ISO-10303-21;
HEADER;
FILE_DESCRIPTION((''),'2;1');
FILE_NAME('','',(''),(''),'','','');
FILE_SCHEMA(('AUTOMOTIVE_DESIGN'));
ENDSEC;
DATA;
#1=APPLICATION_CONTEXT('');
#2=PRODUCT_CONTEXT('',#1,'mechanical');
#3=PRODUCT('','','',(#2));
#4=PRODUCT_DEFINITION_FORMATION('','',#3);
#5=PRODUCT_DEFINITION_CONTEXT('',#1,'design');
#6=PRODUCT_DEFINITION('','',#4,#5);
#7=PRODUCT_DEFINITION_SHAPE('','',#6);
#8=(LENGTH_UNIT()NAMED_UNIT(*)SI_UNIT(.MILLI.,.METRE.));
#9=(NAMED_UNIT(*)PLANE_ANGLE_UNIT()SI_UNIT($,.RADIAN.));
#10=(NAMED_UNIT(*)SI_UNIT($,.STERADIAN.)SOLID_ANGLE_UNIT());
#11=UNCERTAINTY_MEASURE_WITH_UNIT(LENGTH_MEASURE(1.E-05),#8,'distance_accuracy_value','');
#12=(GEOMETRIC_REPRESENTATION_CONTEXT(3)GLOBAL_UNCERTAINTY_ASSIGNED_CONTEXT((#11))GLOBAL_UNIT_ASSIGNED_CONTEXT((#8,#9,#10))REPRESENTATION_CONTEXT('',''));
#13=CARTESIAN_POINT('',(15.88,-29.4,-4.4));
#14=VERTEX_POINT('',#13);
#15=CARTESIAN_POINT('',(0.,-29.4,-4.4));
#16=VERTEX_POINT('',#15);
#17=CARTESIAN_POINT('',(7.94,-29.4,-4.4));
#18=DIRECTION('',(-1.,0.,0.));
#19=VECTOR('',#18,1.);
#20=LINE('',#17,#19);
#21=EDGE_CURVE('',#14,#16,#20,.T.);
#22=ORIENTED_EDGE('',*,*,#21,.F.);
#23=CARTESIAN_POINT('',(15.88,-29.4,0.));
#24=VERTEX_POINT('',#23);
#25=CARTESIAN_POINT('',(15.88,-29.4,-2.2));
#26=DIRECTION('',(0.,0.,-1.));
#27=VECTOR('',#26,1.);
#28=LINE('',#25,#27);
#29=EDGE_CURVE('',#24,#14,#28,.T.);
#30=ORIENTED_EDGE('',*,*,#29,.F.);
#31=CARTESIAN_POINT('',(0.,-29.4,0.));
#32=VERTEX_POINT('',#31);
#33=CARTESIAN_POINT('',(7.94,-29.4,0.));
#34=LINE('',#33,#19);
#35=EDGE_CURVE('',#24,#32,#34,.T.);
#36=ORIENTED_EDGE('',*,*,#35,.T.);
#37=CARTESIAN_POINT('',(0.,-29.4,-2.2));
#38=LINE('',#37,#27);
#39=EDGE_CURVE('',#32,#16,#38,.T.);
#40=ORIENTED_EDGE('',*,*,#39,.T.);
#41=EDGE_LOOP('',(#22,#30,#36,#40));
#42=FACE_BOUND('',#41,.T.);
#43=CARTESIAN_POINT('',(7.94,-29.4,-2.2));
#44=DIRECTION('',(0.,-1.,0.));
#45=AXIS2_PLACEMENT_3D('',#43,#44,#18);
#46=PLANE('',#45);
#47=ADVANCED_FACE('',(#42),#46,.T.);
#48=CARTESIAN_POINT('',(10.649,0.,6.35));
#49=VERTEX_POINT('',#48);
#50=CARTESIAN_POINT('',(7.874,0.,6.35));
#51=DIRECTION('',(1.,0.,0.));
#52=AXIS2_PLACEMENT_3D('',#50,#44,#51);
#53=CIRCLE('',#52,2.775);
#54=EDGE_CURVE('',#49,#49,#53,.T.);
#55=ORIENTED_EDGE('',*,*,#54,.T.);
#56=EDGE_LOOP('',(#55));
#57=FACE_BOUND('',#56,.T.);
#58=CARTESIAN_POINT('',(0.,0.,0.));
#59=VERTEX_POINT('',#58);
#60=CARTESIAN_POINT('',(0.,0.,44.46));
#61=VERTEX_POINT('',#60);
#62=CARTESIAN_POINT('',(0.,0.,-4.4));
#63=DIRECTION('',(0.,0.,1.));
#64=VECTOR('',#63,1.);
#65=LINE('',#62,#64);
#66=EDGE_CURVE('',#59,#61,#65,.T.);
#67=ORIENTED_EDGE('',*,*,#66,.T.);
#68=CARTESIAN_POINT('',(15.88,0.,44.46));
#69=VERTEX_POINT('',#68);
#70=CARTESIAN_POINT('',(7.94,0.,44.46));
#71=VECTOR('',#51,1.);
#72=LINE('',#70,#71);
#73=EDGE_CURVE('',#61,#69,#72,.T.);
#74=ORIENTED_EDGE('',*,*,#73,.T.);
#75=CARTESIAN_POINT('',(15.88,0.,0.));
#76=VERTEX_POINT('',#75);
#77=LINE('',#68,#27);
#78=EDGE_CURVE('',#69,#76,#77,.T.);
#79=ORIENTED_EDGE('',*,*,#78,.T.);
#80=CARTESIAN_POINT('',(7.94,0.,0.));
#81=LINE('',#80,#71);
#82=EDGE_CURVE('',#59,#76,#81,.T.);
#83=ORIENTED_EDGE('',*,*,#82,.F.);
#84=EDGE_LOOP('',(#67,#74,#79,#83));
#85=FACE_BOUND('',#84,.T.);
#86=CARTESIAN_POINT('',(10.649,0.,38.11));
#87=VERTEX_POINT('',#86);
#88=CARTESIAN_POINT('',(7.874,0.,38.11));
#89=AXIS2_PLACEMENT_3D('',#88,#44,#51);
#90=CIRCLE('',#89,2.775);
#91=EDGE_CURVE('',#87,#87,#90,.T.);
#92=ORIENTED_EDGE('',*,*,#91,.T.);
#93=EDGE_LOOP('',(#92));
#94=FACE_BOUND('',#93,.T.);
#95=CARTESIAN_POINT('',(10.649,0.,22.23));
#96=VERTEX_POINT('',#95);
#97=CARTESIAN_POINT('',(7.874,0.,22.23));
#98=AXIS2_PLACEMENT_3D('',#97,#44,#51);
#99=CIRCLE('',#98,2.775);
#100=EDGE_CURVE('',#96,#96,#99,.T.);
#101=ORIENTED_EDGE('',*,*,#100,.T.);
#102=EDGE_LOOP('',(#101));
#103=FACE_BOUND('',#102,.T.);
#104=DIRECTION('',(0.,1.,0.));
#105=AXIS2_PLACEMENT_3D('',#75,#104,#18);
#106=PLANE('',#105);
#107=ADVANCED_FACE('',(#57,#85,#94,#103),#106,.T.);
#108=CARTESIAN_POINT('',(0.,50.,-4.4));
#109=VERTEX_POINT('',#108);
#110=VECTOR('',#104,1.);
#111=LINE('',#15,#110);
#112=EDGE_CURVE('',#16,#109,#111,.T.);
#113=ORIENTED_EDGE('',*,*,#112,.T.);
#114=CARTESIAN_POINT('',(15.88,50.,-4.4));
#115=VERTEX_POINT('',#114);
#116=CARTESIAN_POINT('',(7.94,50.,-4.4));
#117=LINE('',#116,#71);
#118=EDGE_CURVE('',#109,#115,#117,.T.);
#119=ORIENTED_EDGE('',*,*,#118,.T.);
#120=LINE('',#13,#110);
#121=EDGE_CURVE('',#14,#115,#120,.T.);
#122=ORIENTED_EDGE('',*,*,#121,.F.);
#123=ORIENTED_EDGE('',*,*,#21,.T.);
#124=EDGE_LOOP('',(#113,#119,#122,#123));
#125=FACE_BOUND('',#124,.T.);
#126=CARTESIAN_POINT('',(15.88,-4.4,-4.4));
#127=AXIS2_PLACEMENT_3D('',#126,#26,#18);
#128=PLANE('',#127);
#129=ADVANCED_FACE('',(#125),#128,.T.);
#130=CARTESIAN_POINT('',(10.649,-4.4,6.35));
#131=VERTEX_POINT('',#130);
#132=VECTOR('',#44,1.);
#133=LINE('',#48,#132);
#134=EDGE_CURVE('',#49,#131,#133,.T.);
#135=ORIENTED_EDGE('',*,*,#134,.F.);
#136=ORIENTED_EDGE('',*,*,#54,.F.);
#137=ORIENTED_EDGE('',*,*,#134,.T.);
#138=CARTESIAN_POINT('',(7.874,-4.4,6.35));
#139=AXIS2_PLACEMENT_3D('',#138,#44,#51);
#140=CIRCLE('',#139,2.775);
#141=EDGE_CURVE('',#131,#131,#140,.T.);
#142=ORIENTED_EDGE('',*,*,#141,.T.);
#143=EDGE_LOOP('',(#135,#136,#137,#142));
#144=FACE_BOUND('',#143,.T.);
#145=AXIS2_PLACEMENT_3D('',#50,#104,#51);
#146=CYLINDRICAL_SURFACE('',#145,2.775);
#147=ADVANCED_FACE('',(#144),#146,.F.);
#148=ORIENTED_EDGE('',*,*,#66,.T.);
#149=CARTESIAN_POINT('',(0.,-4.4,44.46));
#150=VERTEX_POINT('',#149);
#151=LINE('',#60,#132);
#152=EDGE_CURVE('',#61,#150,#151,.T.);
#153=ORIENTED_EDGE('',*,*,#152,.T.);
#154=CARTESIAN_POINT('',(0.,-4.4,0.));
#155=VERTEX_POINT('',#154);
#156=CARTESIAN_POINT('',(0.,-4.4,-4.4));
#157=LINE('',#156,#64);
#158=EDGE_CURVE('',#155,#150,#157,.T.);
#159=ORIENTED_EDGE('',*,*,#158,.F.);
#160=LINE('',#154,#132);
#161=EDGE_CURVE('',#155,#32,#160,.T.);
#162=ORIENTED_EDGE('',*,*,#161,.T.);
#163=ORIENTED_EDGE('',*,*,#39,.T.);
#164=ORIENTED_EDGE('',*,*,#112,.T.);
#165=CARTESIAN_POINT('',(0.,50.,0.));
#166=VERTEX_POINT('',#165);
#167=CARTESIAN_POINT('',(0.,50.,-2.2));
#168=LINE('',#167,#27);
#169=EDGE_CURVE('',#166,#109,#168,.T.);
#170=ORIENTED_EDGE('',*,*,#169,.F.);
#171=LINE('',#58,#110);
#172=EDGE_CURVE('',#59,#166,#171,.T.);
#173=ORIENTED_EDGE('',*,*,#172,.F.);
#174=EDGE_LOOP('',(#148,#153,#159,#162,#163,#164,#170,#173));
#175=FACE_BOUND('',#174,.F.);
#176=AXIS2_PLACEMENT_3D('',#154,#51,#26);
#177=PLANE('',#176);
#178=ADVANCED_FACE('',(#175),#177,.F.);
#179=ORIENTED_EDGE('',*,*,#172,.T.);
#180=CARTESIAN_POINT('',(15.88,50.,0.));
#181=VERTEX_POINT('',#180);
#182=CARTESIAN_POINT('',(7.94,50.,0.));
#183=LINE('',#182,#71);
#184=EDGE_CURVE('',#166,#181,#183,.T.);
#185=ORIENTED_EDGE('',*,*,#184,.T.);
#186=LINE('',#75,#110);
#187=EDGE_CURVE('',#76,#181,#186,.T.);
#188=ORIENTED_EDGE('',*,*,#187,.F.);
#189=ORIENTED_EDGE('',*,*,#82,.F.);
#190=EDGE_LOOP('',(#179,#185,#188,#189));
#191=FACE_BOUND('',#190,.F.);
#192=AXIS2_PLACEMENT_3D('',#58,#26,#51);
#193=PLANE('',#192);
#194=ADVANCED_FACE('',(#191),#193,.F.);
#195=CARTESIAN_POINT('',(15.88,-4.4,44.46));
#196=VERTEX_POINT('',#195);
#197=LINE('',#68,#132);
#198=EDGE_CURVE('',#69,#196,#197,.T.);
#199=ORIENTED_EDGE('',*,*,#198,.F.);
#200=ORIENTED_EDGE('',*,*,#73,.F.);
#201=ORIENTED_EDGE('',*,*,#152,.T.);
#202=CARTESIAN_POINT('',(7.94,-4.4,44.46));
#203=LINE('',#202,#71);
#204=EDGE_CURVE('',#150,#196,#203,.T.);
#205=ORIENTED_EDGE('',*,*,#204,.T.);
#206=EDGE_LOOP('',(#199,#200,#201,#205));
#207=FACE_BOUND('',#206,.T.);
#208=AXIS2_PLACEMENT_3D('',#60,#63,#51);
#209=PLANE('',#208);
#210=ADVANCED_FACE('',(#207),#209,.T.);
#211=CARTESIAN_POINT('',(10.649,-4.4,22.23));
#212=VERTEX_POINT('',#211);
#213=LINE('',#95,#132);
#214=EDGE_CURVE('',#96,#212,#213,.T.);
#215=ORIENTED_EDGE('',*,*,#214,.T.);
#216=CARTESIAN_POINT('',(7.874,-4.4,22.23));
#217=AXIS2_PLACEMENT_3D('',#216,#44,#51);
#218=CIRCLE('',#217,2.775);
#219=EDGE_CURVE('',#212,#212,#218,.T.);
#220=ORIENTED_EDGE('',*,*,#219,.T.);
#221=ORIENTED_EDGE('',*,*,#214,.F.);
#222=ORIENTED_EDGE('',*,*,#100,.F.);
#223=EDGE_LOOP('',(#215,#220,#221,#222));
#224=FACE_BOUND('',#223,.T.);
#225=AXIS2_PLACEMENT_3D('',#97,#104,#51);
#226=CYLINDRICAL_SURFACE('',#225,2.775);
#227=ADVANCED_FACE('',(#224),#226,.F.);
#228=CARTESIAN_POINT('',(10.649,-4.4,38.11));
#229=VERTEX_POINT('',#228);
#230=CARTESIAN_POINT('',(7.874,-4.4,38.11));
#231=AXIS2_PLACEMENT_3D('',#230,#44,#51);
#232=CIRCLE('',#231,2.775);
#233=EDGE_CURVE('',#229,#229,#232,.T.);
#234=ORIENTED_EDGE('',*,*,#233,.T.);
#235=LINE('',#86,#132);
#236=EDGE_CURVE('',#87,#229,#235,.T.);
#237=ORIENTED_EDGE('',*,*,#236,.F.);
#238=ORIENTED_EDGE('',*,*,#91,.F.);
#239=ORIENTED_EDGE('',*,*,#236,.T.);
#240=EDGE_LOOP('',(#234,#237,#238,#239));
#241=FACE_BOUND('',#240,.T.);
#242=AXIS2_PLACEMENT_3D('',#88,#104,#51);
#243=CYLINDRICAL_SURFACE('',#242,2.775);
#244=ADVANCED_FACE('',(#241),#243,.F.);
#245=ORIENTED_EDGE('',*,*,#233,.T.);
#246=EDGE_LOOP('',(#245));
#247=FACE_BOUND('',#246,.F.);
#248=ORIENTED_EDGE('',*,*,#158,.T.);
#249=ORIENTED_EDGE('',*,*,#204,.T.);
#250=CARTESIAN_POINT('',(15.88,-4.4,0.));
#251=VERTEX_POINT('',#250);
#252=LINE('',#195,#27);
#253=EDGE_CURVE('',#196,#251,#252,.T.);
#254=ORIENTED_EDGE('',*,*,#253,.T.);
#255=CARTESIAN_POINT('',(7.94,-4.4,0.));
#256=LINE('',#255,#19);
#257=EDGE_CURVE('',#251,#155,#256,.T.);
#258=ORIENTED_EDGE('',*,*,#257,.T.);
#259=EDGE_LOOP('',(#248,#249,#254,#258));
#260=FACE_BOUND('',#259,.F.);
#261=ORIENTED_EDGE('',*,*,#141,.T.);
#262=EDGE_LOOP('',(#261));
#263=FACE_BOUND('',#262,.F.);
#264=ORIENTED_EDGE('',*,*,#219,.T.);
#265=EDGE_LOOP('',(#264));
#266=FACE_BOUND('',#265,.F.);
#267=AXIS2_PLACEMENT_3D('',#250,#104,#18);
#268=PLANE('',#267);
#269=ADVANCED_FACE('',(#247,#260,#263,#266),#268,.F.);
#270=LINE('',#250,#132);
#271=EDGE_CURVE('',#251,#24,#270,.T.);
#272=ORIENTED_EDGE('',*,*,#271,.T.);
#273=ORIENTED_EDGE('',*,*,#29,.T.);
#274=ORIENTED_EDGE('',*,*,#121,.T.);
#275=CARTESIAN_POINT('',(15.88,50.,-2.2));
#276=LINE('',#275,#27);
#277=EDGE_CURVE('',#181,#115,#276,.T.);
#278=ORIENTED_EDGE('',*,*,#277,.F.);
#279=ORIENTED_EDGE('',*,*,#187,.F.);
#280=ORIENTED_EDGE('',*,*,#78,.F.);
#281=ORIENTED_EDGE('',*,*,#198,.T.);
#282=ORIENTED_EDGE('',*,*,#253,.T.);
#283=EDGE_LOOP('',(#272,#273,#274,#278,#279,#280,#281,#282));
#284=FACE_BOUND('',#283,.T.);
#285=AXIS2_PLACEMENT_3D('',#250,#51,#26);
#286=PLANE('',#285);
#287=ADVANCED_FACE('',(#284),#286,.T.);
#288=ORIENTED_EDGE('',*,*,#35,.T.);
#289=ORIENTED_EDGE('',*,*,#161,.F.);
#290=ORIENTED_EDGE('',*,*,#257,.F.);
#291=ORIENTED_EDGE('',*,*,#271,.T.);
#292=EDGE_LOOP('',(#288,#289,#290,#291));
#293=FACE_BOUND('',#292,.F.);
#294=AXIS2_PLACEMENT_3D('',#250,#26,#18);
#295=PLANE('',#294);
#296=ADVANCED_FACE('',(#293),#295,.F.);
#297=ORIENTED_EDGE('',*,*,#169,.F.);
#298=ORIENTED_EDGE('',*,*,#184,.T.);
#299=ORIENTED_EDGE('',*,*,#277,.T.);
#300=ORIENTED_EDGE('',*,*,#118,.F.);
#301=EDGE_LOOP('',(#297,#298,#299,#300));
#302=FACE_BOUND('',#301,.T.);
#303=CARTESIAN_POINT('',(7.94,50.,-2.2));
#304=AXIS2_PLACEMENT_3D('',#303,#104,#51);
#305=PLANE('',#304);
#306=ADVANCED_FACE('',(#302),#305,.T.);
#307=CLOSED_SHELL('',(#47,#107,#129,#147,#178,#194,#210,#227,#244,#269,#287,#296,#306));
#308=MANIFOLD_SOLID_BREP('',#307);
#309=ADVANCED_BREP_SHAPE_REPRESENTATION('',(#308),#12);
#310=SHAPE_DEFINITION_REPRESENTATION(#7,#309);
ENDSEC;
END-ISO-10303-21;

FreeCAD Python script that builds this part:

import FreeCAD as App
import Part
import Sketcher


def add_polygon(sketch, points):
    """Adds a closed chain of lines whose ends are joined by coincident constraints."""
    first, n = sketch.GeometryCount, len(points)
    for a, b in zip(points, points[1:] + points[:1]):
        sketch.addGeometry(Part.LineSegment(App.Vector(*a, 0), App.Vector(*b, 0)), False)
    for i in range(n):
        sketch.addConstraint(Sketcher.Constraint("Coincident", first + i, 2, first + (i + 1) % n, 1))

doc = App.newDocument("Part")
body = doc.addObject("PartDesign::Body", "Body")

# Sketch on XZ plane
sketch1 = doc.addObject("Sketcher::SketchObject", "Sketch")
body.addObject(sketch1)
sketch1.AttachmentSupport = (doc.XZ_Plane, [""])
sketch1.MapMode = "FlatFace"
add_polygon(sketch1, [(0, 44.46), (0, 0), (15.88, 0), (15.88, 44.46)])  # lines 0-3
sketch1.addGeometry(Part.Circle(App.Vector(7.874, 6.35, 0), App.Vector(0, 0, 1), 2.775), False)  # 4
sketch1.addGeometry(Part.Circle(App.Vector(7.874, 22.23, 0), App.Vector(0, 0, 1), 2.775), False)  # 5
sketch1.addGeometry(Part.Circle(App.Vector(7.874, 38.11, 0), App.Vector(0, 0, 1), 2.775), False)  # 6
sketch1.addConstraint([
    Sketcher.Constraint("Vertical", 0),
    Sketcher.Constraint("Horizontal", 1),
    Sketcher.Constraint("Vertical", 2),
    Sketcher.Constraint("Horizontal", 3),
    Sketcher.Constraint("Coincident", 0, 2, -1, 1),
    Sketcher.Constraint("Equal", 4, 5),
    Sketcher.Constraint("Equal", 5, 6),
    Sketcher.Constraint("Vertical", 4, 3, 5, 3),
    Sketcher.Constraint("Vertical", 5, 3, 6, 3),
    Sketcher.Constraint("Diameter", 4, 5.55),
    Sketcher.Constraint("DistanceX", 1, 1, 1, 2, 15.88),
    Sketcher.Constraint("DistanceY", 0, 2, 0, 1, 44.46),
    Sketcher.Constraint("DistanceY", -1, 1, 4, 3, 6.35),
    Sketcher.Constraint("DistanceY", -1, 1, 5, 3, 22.23),
    Sketcher.Constraint("DistanceY", -1, 1, 6, 3, 38.11),
    Sketcher.Constraint("DistanceX", -1, 1, 4, 3, 7.874),
])
pad1 = doc.addObject("PartDesign::Pad", "Pad")
body.addObject(pad1)
pad1.Profile = sketch1
pad1.Length = 4.4

# Sketch on XY plane
sketch2 = doc.addObject("Sketcher::SketchObject", "Sketch001")
body.addObject(sketch2)
sketch2.AttachmentSupport = (doc.XY_Plane, [""])
sketch2.MapMode = "FlatFace"
add_polygon(sketch2, [(0, 0), (15.88, 0), (15.88, -4.4), (0, -4.4)])  # lines 0-3
sketch2.addConstraint([
    Sketcher.Constraint("Horizontal", 0),
    Sketcher.Constraint("Vertical", 1),
    Sketcher.Constraint("Horizontal", 2),
    Sketcher.Constraint("Vertical", 3),
    Sketcher.Constraint("Coincident", 3, 2, -1, 1),
    Sketcher.Constraint("DistanceY", 1, 2, 1, 1, 4.4),
    Sketcher.Constraint("DistanceX", 0, 1, 0, 2, 15.88),
])
pad2 = doc.addObject("PartDesign::Pad", "Pad001")
body.addObject(pad2)
pad2.Profile = sketch2
pad2.Length = 4.4
pad2.Reversed = True

# Sketch on XZ plane
sketch3 = doc.addObject("Sketcher::SketchObject", "Sketch002")
body.addObject(sketch3)
sketch3.AttachmentSupport = (doc.XZ_Plane, [""])
sketch3.MapMode = "FlatFace"
add_polygon(sketch3, [(0, -4.4), (0, 0), (15.88, 0), (15.88, -4.4)])  # lines 0-3
sketch3.addConstraint([
    Sketcher.Constraint("Vertical", 0),
    Sketcher.Constraint("Horizontal", 1),
    Sketcher.Constraint("Vertical", 2),
    Sketcher.Constraint("Horizontal", 3),
    Sketcher.Constraint("Coincident", 0, 2, -1, 1),
    Sketcher.Constraint("DistanceY", 0, 1, 0, 2, 4.4),
    Sketcher.Constraint("DistanceX", 1, 1, 1, 2, 15.88),
])
pad3 = doc.addObject("PartDesign::Pad", "Pad002")
body.addObject(pad3)
pad3.Profile = sketch3
pad3.Length = 50
pad3.Reversed = True

# Sketch on XZ plane
sketch4 = doc.addObject("Sketcher::SketchObject", "Sketch003")
body.addObject(sketch4)
sketch4.AttachmentSupport = (doc.XZ_Plane, [""])
sketch4.MapMode = "FlatFace"
sketch4.AttachmentOffset = App.Placement(App.Vector(0, 0, 4.4), App.Rotation())
add_polygon(sketch4, [(15.88, -4.4), (15.88, 0), (0, 0), (0, -4.4)])  # lines 0-3
sketch4.addConstraint([
    Sketcher.Constraint("Vertical", 0),
    Sketcher.Constraint("Horizontal", 1),
    Sketcher.Constraint("Vertical", 2),
    Sketcher.Constraint("Horizontal", 3),
    Sketcher.Constraint("Coincident", 1, 2, -1, 1),
    Sketcher.Constraint("DistanceY", 0, 1, 0, 2, 4.4),
    Sketcher.Constraint("DistanceX", 1, 2, 1, 1, 15.88),
])
pad4 = doc.addObject("PartDesign::Pad", "Pad003")
body.addObject(pad4)
pad4.Profile = sketch4
pad4.Length = 25

doc.recompute()
